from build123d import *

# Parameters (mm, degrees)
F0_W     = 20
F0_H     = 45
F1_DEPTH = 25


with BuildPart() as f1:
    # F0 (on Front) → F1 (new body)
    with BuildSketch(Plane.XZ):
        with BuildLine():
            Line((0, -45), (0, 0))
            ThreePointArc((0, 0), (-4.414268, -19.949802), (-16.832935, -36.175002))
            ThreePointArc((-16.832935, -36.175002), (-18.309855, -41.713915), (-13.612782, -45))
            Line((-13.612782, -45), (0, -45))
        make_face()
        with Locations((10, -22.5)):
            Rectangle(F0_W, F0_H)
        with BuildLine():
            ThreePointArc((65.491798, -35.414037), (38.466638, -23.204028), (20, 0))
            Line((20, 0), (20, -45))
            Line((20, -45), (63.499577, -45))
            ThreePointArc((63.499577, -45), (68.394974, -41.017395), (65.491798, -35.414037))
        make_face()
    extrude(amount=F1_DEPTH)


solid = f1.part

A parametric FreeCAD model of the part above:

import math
import FreeCAD as App
import Part
import Sketcher
from FreeCAD import Vector

doc = App.newDocument("Part")
body = doc.addObject("PartDesign::Body", "Body")

# Sketch on XZ plane
sketch1 = body.newObject("Sketcher::SketchObject", "Sketch")
sketch1.AttachmentSupport = (doc.getObject("XZ_Plane"), [""])
sketch1.MapMode = "FlatFace"
sketch1.addGeometry(Part.ArcOfCircle(Part.Circle(Vector(-47.287607, 0, 0), Vector(0, 0, 1), 47.287607), math.radians(-49.906958), math.radians(0.000001)), False)
sketch1.addGeometry(Part.ArcOfCircle(Part.Circle(Vector(-13.612782, -40, 0), Vector(0, 0, 1), 5), math.radians(130.093033), math.radians(270.000002)), False)
sketch1.addGeometry(Part.LineSegment(Vector(-13.612782, -45, 0), Vector(63.499577, -45, 0)), False)
sketch1.addGeometry(Part.ArcOfCircle(Part.Circle(Vector(63.499577, -40, 0), Vector(0, 0, 1), 5), math.radians(-90.000005), math.radians(66.519052)), False)
sketch1.addGeometry(Part.ArcOfCircle(Part.Circle(Vector(77.240921, 26.604241, 0), Vector(0, 0, 1), 63.121381), math.radians(-155.072097), math.radians(-100.727336)), False)
sketch1.addGeometry(Part.LineSegment(Vector(20, 0, 0), Vector(0, 0, 0)), False)
sketch1.addConstraint(Sketcher.Constraint("Tangent", 0, 1, 1, 1))
sketch1.addConstraint(Sketcher.Constraint("Tangent", 1, 2, 2, 1))
sketch1.addConstraint(Sketcher.Constraint("Tangent", 2, 2, 3, 1))
sketch1.addConstraint(Sketcher.Constraint("Coincident", 3, 2, 4, 2))
sketch1.addConstraint(Sketcher.Constraint("Coincident", 4, 1, 5, 1))
sketch1.addConstraint(Sketcher.Constraint("Coincident", 5, 2, 0, 2))
sketch1.addConstraint(Sketcher.Constraint("Horizontal", 2))
sketch1.addConstraint(Sketcher.Constraint("Horizontal", 5))
sketch1.addConstraint(Sketcher.Constraint("Coincident", 5, 2, -1, 1))
sketch1.addConstraint(Sketcher.Constraint("Equal", 1, 3))
sketch1.addConstraint(Sketcher.Constraint("PointOnObject", 0, 3, -1))
sketch1.addConstraint(Sketcher.Constraint("Radius", 1, 5.0))
sketch1.addConstraint(Sketcher.Constraint("DistanceX", 5, 2, 5, 1, 20.0))
sketch1.addConstraint(Sketcher.Constraint("DistanceY", 1, 3, -1, 1, 40.0))
sketch1.addConstraint(Sketcher.Constraint("Radius", 4, 63.121381))
sketch1.addConstraint(Sketcher.Constraint("Radius", 0, 47.287607))
sketch1.addConstraint(Sketcher.Constraint("DistanceX", 2, 1, 2, 2, 77.112359))
sketch1.addConstraint(Sketcher.Constraint("DistanceX", -1, 1, 4, 3, 77.240921))
pad1 = body.newObject("PartDesign::Pad", "Pad")
pad1.Profile = sketch1
pad1.Length = 25

doc.recompute()
